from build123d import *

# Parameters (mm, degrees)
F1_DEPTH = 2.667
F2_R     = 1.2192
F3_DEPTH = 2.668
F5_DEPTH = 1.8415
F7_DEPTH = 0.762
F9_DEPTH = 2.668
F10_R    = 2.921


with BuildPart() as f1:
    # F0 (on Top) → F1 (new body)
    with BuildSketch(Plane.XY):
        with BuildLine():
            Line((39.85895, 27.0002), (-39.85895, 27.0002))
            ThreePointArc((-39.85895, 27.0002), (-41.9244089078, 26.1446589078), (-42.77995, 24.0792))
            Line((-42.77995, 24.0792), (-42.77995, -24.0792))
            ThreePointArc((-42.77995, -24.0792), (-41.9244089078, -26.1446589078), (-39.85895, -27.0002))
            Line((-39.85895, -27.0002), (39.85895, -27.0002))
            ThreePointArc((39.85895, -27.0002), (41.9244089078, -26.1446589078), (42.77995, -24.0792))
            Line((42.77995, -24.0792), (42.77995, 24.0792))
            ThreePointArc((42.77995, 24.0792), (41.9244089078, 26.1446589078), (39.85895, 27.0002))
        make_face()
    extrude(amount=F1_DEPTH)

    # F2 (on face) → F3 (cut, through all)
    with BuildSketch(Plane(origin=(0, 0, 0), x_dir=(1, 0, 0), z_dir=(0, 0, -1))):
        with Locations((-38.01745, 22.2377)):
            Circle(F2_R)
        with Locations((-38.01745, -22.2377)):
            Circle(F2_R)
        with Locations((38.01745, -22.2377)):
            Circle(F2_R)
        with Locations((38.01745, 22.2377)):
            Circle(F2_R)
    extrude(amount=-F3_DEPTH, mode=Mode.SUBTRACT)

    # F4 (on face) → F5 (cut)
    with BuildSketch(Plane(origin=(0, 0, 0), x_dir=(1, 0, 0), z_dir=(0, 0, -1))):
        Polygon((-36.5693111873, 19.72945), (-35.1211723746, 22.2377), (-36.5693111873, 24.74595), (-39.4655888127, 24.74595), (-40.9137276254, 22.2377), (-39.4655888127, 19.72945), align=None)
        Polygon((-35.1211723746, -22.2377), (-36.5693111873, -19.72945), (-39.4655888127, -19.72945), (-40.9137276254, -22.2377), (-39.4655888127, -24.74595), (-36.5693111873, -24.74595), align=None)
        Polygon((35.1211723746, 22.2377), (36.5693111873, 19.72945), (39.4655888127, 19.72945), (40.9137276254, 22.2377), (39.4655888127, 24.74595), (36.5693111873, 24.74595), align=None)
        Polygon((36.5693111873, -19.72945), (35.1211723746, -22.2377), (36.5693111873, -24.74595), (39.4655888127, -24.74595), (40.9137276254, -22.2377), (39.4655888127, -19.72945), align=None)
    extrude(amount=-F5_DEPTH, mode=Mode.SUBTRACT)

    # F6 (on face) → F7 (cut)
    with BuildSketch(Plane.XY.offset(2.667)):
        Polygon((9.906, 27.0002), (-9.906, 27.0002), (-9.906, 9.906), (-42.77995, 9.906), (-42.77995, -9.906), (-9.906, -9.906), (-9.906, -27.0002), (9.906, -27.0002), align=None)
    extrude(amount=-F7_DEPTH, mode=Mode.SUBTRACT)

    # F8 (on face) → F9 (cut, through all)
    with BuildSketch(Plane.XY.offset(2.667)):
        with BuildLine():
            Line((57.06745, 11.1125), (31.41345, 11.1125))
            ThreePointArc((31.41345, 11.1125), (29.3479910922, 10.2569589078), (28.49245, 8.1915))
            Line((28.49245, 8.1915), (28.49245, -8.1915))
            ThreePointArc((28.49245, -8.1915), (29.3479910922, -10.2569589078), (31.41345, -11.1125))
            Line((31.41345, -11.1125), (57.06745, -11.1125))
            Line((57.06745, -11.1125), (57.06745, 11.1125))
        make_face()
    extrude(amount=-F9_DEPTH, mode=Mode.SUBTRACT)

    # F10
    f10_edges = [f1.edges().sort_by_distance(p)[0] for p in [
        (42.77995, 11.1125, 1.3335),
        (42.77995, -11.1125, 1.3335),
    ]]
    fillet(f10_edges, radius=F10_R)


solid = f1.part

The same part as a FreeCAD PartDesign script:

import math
import FreeCAD as App
import Part
import Sketcher

V = App.Vector
Q = App.Units.Quantity


def edges_at(feature, points):
    """Names of the edges that pass closest to the given points."""
    edges = feature.Shape.Edges
    near = lambda p: min(range(len(edges)), key=lambda i: edges[i].distToShape(Part.Vertex(*p))[0])
    return sorted({f"Edge{near(p) + 1}" for p in points})


def add_polygon(sketch, points):
    """Adds a closed chain of lines whose ends are joined by coincident constraints."""
    first, n = sketch.GeometryCount, len(points)
    for a, b in zip(points, points[1:] + points[:1]):
        sketch.addGeometry(Part.LineSegment(App.Vector(*a, 0), App.Vector(*b, 0)), False)
    for i in range(n):
        sketch.addConstraint(Sketcher.Constraint("Coincident", first + i, 2, first + (i + 1) % n, 1))

doc = App.newDocument("Part")
body = doc.addObject("PartDesign::Body", "Body")

# Sketch on XY plane
sketch1 = body.newObject("Sketcher::SketchObject", "Sketch")
sketch1.AttachmentSupport = (doc.getObject("XY_Plane"), [""])
sketch1.MapMode = "FlatFace"
sketch1.addGeometry([
    Part.LineSegment(V(39.85895, 27.0002, 0), V(-39.85895, 27.0002, 0)),  # 0
    Part.ArcOfCircle(Part.Circle(V(-39.85895, 24.0792, 0), V(0, 0, 1), 2.921), math.radians(90), math.radians(180)),  # 1
    Part.LineSegment(V(-42.77995, 24.0792, 0), V(-42.77995, -24.0792, 0)),  # 2
    Part.ArcOfCircle(Part.Circle(V(-39.85895, -24.0792, 0), V(0, 0, 1), 2.921), math.radians(180), math.radians(270)),  # 3
    Part.LineSegment(V(-39.85895, -27.0002, 0), V(39.85895, -27.0002, 0)),  # 4
    Part.ArcOfCircle(Part.Circle(V(39.85895, -24.0792, 0), V(0, 0, 1), 2.921), math.radians(-90), math.radians(0)),  # 5
    Part.LineSegment(V(42.77995, -24.0792, 0), V(42.77995, 24.0792, 0)),  # 6
    Part.ArcOfCircle(Part.Circle(V(39.85895, 24.0792, 0), V(0, 0, 1), 2.921), math.radians(0), math.radians(90)),  # 7
], False)
sketch1.addConstraint([
    Sketcher.Constraint("Tangent", 0, 2, 1, 1),
    Sketcher.Constraint("Tangent", 1, 2, 2, 1),
    Sketcher.Constraint("Tangent", 2, 2, 3, 1),
    Sketcher.Constraint("Tangent", 3, 2, 4, 1),
    Sketcher.Constraint("Tangent", 4, 2, 5, 1),
    Sketcher.Constraint("Tangent", 5, 2, 6, 1),
    Sketcher.Constraint("Tangent", 6, 2, 7, 1),
    Sketcher.Constraint("Tangent", 7, 2, 0, 1),
    Sketcher.Constraint("Horizontal", 0),
    Sketcher.Constraint("Vertical", 2),
    Sketcher.Constraint("Horizontal", 4),
    Sketcher.Constraint("Vertical", 6),
    Sketcher.Constraint("Equal", 1, 3),
    Sketcher.Constraint("Equal", 3, 5),
    Sketcher.Constraint("Equal", 5, 7),
    Sketcher.Constraint("Symmetric", 1, 3, 5, 3, -1, 1),
    Sketcher.Constraint("Radius", 1, Q("0.115 in")),
    Sketcher.Constraint("DistanceY", 2, 2, 2, 1, Q("1.896 in")),
    Sketcher.Constraint("DistanceX", 0, 2, 0, 1, Q("3.1385 in")),
])
pad1 = body.newObject("PartDesign::Pad", "Pad")
pad1.Profile = sketch1
pad1.Length = Q("0.105 in")

# Sketch on XY plane
sketch2 = body.newObject("Sketcher::SketchObject", "Sketch001")
sketch2.AttachmentSupport = (doc.getObject("XY_Plane"), [""])
sketch2.MapMode = "FlatFace"
sketch2.addGeometry([
    Part.Circle(V(-38.01745, -22.2377, 0), V(0, 0, 1), 1.2192),
    Part.Circle(V(-38.01745, 22.2377, 0), V(0, 0, 1), 1.2192),
    Part.Circle(V(38.01745, 22.2377, 0), V(0, 0, 1), 1.2192),
    Part.Circle(V(38.01745, -22.2377, 0), V(0, 0, 1), 1.2192),
], False)
sketch2.addConstraint([
    Sketcher.Constraint("Equal", 0, 1),
    Sketcher.Constraint("Equal", 1, 2),
    Sketcher.Constraint("Equal", 2, 3),
    Sketcher.Constraint("Symmetric", 0, 3, 2, 3, -1, 1),
    Sketcher.Constraint("Symmetric", 1, 3, 3, 3, -1, 1),
    Sketcher.Constraint("Symmetric", 1, 3, 2, 3, -2),
    Sketcher.Constraint("Diameter", 0, Q("0.096 in")),
    Sketcher.Constraint("DistanceY", 0, 3, 1, 3, Q("1.751 in")),
    Sketcher.Constraint("DistanceX", 1, 3, 2, 3, Q("2.9935 in")),
])
pocket1 = body.newObject("PartDesign::Pocket", "Pocket")
pocket1.Profile = sketch2
pocket1.Type = "ThroughAll"
pocket1.Reversed = True

# Sketch on XY plane
sketch3 = body.newObject("Sketcher::SketchObject", "Sketch002")
sketch3.AttachmentSupport = (doc.getObject("XY_Plane"), [""])
sketch3.MapMode = "FlatFace"
add_polygon(sketch3, [(-36.569311, -19.72945), (-35.121172, -22.2377), (-36.569311, -24.74595), (-39.465589, -24.74595), (-40.913728, -22.2377), (-39.465589, -19.72945)])  # lines 0-5
add_polygon(sketch3, [(-35.121172, 22.2377), (-36.569311, 19.72945), (-39.465589, 19.72945), (-40.913728, 22.2377), (-39.465589, 24.74595), (-36.569311, 24.74595)])  # lines 6-11
add_polygon(sketch3, [(35.121172, -22.2377), (36.569311, -19.72945), (39.465589, -19.72945), (40.913728, -22.2377), (39.465589, -24.74595), (36.569311, -24.74595)])  # lines 12-17
add_polygon(sketch3, [(36.569311, 19.72945), (35.121172, 22.2377), (36.569311, 24.74595), (39.465589, 24.74595), (40.913728, 22.2377), (39.465589, 19.72945)])  # lines 18-23
sketch3.addConstraint([
    Sketcher.Constraint("Horizontal", 2),
    Sketcher.Constraint("Horizontal", 5),
    Sketcher.Constraint("Horizontal", 7),
    Sketcher.Constraint("Horizontal", 10),
    Sketcher.Constraint("Horizontal", 13),
    Sketcher.Constraint("Horizontal", 16),
    Sketcher.Constraint("Horizontal", 20),
    Sketcher.Constraint("Horizontal", 23),
    Sketcher.Constraint("Symmetric", 6, 2, 12, 2, -1, 1),
    Sketcher.Constraint("Symmetric", 8, 2, 14, 2, -1, 1),
    Sketcher.Constraint("Symmetric", 9, 2, 15, 2, -1, 1),
    Sketcher.Constraint("Symmetric", 11, 2, 17, 2, -1, 1),
    Sketcher.Constraint("Symmetric", 0, 2, 18, 2, -1, 1),
    Sketcher.Constraint("Symmetric", 1, 2, 19, 2, -1, 1),
    Sketcher.Constraint("Symmetric", 3, 2, 21, 2, -1, 1),
    Sketcher.Constraint("Symmetric", 4, 2, 22, 2, -1, 1),
    Sketcher.Constraint("Symmetric", 5, 2, 12, 2, -2),
    Sketcher.Constraint("Symmetric", 3, 2, 14, 2, -2),
    Sketcher.Constraint("Symmetric", 2, 2, 15, 2, -2),
    Sketcher.Constraint("Symmetric", 0, 2, 17, 2, -2),
    Sketcher.Constraint("Parallel", 0, 3),
    Sketcher.Constraint("Parallel", 1, 4),
    Sketcher.Constraint("Parallel", 4, 6),
    Sketcher.Constraint("Parallel", 3, 8),
    Sketcher.Constraint("Parallel", 8, 11),
    Sketcher.Constraint("Parallel", 11, 14),
    Sketcher.Constraint("Parallel", 14, 17),
    Sketcher.Constraint("Parallel", 17, 18),
    Sketcher.Constraint("Parallel", 18, 21),
    Sketcher.Constraint("Horizontal", 0, 2, 3, 2),
    Sketcher.Constraint("Vertical", 2, 2, 4, 2),
    Sketcher.Constraint("Angle", 0, Q("-60 deg")),
    Sketcher.Constraint("DistanceY", 1, 2, 6, 2, Q("1.751 in")),
    Sketcher.Constraint("DistanceY", 2, 2, 4, 2, Q("0.1975 in")),
    Sketcher.Constraint("DistanceX", 4, 2, 12, 2, Q("2.9935 in")),
    Sketcher.Constraint("DistanceX", 2, 2, 2, 1, 2.896278),
])
pocket2 = body.newObject("PartDesign::Pocket", "Pocket001")
pocket2.Profile = sketch3
pocket2.Length = Q("0.0725 in")
pocket2.Reversed = True

# Sketch on XY plane
sketch4 = body.newObject("Sketcher::SketchObject", "Sketch003")
sketch4.AttachmentSupport = (doc.getObject("XY_Plane"), [""])
sketch4.MapMode = "FlatFace"
sketch4.AttachmentOffset = App.Placement(V(0, 0, 0.105 * 25.4), App.Rotation())
add_polygon(sketch4, [(9.906, 27.0002), (-9.906, 27.0002), (-9.906, 9.906), (-42.77995, 9.906), (-42.77995, -9.906), (-9.906, -9.906), (-9.906, -27.0002), (9.906, -27.0002)])  # lines 0-7
sketch4.addConstraint([
    Sketcher.Constraint("Horizontal", 0),
    Sketcher.Constraint("Vertical", 1),
    Sketcher.Constraint("Horizontal", 2),
    Sketcher.Constraint("Vertical", 3),
    Sketcher.Constraint("Horizontal", 4),
    Sketcher.Constraint("Vertical", 5),
    Sketcher.Constraint("Horizontal", 6),
    Sketcher.Constraint("Vertical", 7),
    Sketcher.Constraint("Symmetric", 0, 2, 6, 2, -1, 1),
    Sketcher.Constraint("Symmetric", 1, 2, 4, 2, -1),
    Sketcher.Constraint("Equal", 6, 3),
    Sketcher.Constraint("DistanceX", 0, 2, 0, 1, Q("0.78 in")),
    Sketcher.Constraint("DistanceY", 1, 2, 1, 1, Q("0.673 in")),
    Sketcher.Constraint("DistanceX", 2, 2, 2, 1, 32.87395),
])
pocket3 = body.newObject("PartDesign::Pocket", "Pocket002")
pocket3.Profile = sketch4
pocket3.Length = Q("0.03 in")

# Sketch on XY plane
sketch5 = body.newObject("Sketcher::SketchObject", "Sketch004")
sketch5.AttachmentSupport = (doc.getObject("XY_Plane"), [""])
sketch5.MapMode = "FlatFace"
sketch5.AttachmentOffset = App.Placement(V(0, 0, 0.105 * 25.4), App.Rotation())
sketch5.addGeometry([
    Part.LineSegment(V(57.06745, 11.1125, 0), V(31.41345, 11.1125, 0)),  # 0
    Part.ArcOfCircle(Part.Circle(V(31.41345, 8.1915, 0), V(0, 0, 1), 2.921), math.radians(90), math.radians(180)),  # 1
    Part.LineSegment(V(28.49245, 8.1915, 0), V(28.49245, -8.1915, 0)),  # 2
    Part.ArcOfCircle(Part.Circle(V(31.41345, -8.1915, 0), V(0, 0, 1), 2.921), math.radians(180), math.radians(270)),  # 3
    Part.LineSegment(V(31.41345, -11.1125, 0), V(57.06745, -11.1125, 0)),  # 4
    Part.LineSegment(V(57.06745, -11.1125, 0), V(57.06745, 11.1125, 0)),  # 5
], False)
sketch5.addConstraint([
    Sketcher.Constraint("Tangent", 0, 2, 1, 1),
    Sketcher.Constraint("Tangent", 1, 2, 2, 1),
    Sketcher.Constraint("Tangent", 2, 2, 3, 1),
    Sketcher.Constraint("Tangent", 3, 2, 4, 1),
    Sketcher.Constraint("Coincident", 4, 2, 5, 1),
    Sketcher.Constraint("Coincident", 5, 2, 0, 1),
    Sketcher.Constraint("Horizontal", 0),
    Sketcher.Constraint("Vertical", 2),
    Sketcher.Constraint("Horizontal", 4),
    Sketcher.Constraint("Vertical", 5),
    Sketcher.Constraint("Equal", 1, 3),
    Sketcher.Constraint("Radius", 1, Q("0.115 in")),
    Sketcher.Constraint("DistanceX", 0, 2, 0, 1, Q("1.01 in")),
    Sketcher.Constraint("DistanceY", 2, 2, 2, 1, Q("0.645 in")),
    Sketcher.Constraint("DistanceY", -1, 1, 0, 2, Q("0.4375 in")),
    Sketcher.Constraint("DistanceX", -1, 1, 1, 3, 31.41345),
])
pocket4 = body.newObject("PartDesign::Pocket", "Pocket003")
pocket4.Profile = sketch5
pocket4.Type = "ThroughAll"
doc.recompute()

fillet = body.newObject("PartDesign::Fillet", "Fillet")
fillet.Base = (pocket4, edges_at(pocket4, [(42.78, 11.113, 1.333), (42.78, -11.113, 1.333)]))
fillet.Radius = Q("0.115 in")

doc.recompute()
